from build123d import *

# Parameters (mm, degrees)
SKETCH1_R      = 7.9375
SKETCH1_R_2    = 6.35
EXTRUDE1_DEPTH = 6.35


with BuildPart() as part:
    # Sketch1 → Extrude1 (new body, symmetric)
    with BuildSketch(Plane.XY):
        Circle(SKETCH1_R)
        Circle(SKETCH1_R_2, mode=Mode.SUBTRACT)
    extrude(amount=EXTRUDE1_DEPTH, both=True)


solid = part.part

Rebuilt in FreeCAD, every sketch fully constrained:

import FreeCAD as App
import Part
import Sketcher

V = App.Vector
Q = App.Units.Quantity

doc = App.newDocument("Part")
body = doc.addObject("PartDesign::Body", "Body")

sketch1 = body.newObject("Sketcher::SketchObject", "Sketch")
sketch1.AttachmentSupport = (doc.getObject("XY_Plane"), [""])
sketch1.MapMode = "FlatFace"
sketch1.addGeometry([
    Part.Circle(V(0, 0, 0), V(0, 0, 1), 8),
    Part.Circle(V(0, 0, 0), V(0, 0, 1), 6),
], False)
sketch1.addConstraint([
    Sketcher.Constraint("Coincident", 0, 3, -1, 1),
    Sketcher.Constraint("Coincident", 1, 3, -1, 1),
    Sketcher.Constraint("Diameter", 1, Q("0.5 in")),
    Sketcher.Constraint("Diameter", 0, Q("0.625 in")),
])
pad1 = body.newObject("PartDesign::Pad", "Pad")
pad1.Profile = sketch1
pad1.Length = Q("0.5 in")
pad1.Midplane = True

doc.recompute()
